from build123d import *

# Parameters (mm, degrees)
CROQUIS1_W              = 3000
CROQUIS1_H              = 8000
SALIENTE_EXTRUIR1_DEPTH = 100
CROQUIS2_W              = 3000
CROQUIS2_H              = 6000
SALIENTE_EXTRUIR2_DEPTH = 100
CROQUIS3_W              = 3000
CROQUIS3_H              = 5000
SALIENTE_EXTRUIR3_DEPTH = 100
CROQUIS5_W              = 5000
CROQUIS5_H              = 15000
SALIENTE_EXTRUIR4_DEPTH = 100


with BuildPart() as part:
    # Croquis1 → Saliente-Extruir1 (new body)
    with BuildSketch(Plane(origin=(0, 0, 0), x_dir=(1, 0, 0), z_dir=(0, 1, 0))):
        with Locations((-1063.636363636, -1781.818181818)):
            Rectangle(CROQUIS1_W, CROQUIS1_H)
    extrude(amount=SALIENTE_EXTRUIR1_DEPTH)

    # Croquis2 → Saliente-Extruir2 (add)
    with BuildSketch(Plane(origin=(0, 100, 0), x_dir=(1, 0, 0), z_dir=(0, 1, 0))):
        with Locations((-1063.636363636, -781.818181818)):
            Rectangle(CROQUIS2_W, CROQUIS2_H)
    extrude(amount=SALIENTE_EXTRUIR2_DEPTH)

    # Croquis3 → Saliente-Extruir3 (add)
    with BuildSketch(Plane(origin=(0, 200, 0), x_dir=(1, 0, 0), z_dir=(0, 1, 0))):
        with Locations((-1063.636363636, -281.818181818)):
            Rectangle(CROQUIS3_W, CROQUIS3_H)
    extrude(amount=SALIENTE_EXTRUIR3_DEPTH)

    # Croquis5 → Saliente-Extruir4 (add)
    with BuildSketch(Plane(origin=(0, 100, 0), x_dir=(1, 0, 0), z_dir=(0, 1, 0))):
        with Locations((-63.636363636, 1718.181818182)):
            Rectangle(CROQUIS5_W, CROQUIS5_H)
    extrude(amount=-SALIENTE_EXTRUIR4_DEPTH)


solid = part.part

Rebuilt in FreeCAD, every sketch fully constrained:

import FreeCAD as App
import Part
import Sketcher
Q = App.Units.Quantity

doc = App.newDocument("Part")
params = doc.addObject("Spreadsheet::Sheet", "Params")
for row, (alias, value) in enumerate([
    ("sketch1_width", "3000 mm"),
    ("sketch1_height", "8000 mm"),
    ("pad1_length", "100 mm"),
    ("sketch2_width", "3000 mm"),
    ("sketch2_height", "6000 mm"),
    ("pad2_length", "100 mm"),
    ("sketch3_width", "3000 mm"),
    ("sketch3_height", "5000 mm"),
    ("pad3_length", "100 mm"),
    ("sketch4_width", "5000 mm"),
    ("sketch4_height", "15000 mm"),
    ("pad4_length", "100 mm"),
], start=1):
    params.set(f"A{row}", alias)
    params.set(f"B{row}", "=" + value)
    params.setAlias(f"B{row}", alias)

body = doc.addObject("PartDesign::Body", "Body")

# Sketch on XZ plane
sketch1 = body.newObject("Sketcher::SketchObject", "Sketch")
sketch1.AttachmentSupport = (doc.getObject("XZ_Plane"), [""])
sketch1.MapMode = "FlatFace"
sketch1.addGeometry([
    Part.LineSegment(App.Vector(-2564, -2218, 0), App.Vector(-2564, 5782, 0)),
    Part.LineSegment(App.Vector(-2564, 5782, 0), App.Vector(436, 5782, 0)),
    Part.LineSegment(App.Vector(436, 5782, 0), App.Vector(436, -2218, 0)),
    Part.LineSegment(App.Vector(436, -2218, 0), App.Vector(-2564, -2218, 0)),
], False)
sketch1.addConstraint([
    Sketcher.Constraint("Coincident", 0, 2, 1, 1),
    Sketcher.Constraint("Coincident", 1, 2, 2, 1),
    Sketcher.Constraint("Coincident", 2, 2, 3, 1),
    Sketcher.Constraint("Coincident", 3, 2, 0, 1),
    Sketcher.Constraint("Vertical", 0),
    Sketcher.Constraint("Horizontal", 1),
    Sketcher.Constraint("Vertical", 2),
    Sketcher.Constraint("Horizontal", 3),
    Sketcher.Constraint("DistanceX", 1, 1, 1, 2, Q("3000 mm")),
    Sketcher.Constraint("DistanceY", 0, 1, 0, 2, Q("8000 mm")),
    Sketcher.Constraint("DistanceY", -1, 1, 0, 2, Q("5781.818182 mm")),
    Sketcher.Constraint("DistanceX", 0, 2, -1, 1, Q("2563.636364 mm")),
])
sketch1.setExpression("Constraints[8]", "Params.sketch1_width")
sketch1.setExpression("Constraints[9]", "Params.sketch1_height")
pad1 = body.newObject("PartDesign::Pad", "Pad")
pad1.Profile = sketch1
pad1.setExpression("Length", "Params.pad1_length")
pad1.Reversed = True

# Sketch on XZ plane
sketch2 = body.newObject("Sketcher::SketchObject", "Sketch001")
sketch2.AttachmentSupport = (doc.getObject("XZ_Plane"), [""])
sketch2.MapMode = "FlatFace"
sketch2.AttachmentOffset = App.Placement(App.Vector(0, 0, -100), App.Rotation())
sketch2.addGeometry([
    Part.LineSegment(App.Vector(-2564, -2218, 0), App.Vector(-2564, 3782, 0)),
    Part.LineSegment(App.Vector(-2564, 3782, 0), App.Vector(436, 3782, 0)),
    Part.LineSegment(App.Vector(436, 3782, 0), App.Vector(436, -2218, 0)),
    Part.LineSegment(App.Vector(436, -2218, 0), App.Vector(-2564, -2218, 0)),
], False)
sketch2.addConstraint([
    Sketcher.Constraint("Coincident", 0, 2, 1, 1),
    Sketcher.Constraint("Coincident", 1, 2, 2, 1),
    Sketcher.Constraint("Coincident", 2, 2, 3, 1),
    Sketcher.Constraint("Coincident", 3, 2, 0, 1),
    Sketcher.Constraint("Vertical", 0),
    Sketcher.Constraint("Horizontal", 1),
    Sketcher.Constraint("Vertical", 2),
    Sketcher.Constraint("Horizontal", 3),
    Sketcher.Constraint("DistanceX", 1, 1, 1, 2, Q("3000 mm")),
    Sketcher.Constraint("DistanceY", 0, 1, 0, 2, Q("6000 mm")),
    Sketcher.Constraint("DistanceY", -1, 1, 0, 2, Q("3781.818182 mm")),
    Sketcher.Constraint("DistanceX", 0, 2, -1, 1, Q("2563.636364 mm")),
])
sketch2.setExpression("Constraints[8]", "Params.sketch2_width")
sketch2.setExpression("Constraints[9]", "Params.sketch2_height")
pad2 = body.newObject("PartDesign::Pad", "Pad001")
pad2.Profile = sketch2
pad2.setExpression("Length", "Params.pad2_length")
pad2.Reversed = True

# Sketch on XZ plane
sketch3 = body.newObject("Sketcher::SketchObject", "Sketch002")
sketch3.AttachmentSupport = (doc.getObject("XZ_Plane"), [""])
sketch3.MapMode = "FlatFace"
sketch3.AttachmentOffset = App.Placement(App.Vector(0, 0, -200), App.Rotation())
sketch3.addGeometry([
    Part.LineSegment(App.Vector(-2564, -2218, 0), App.Vector(-2564, 2782, 0)),
    Part.LineSegment(App.Vector(-2564, 2782, 0), App.Vector(436, 2782, 0)),
    Part.LineSegment(App.Vector(436, 2782, 0), App.Vector(436, -2218, 0)),
    Part.LineSegment(App.Vector(436, -2218, 0), App.Vector(-2564, -2218, 0)),
], False)
sketch3.addConstraint([
    Sketcher.Constraint("Coincident", 0, 2, 1, 1),
    Sketcher.Constraint("Coincident", 1, 2, 2, 1),
    Sketcher.Constraint("Coincident", 2, 2, 3, 1),
    Sketcher.Constraint("Coincident", 3, 2, 0, 1),
    Sketcher.Constraint("Vertical", 0),
    Sketcher.Constraint("Horizontal", 1),
    Sketcher.Constraint("Vertical", 2),
    Sketcher.Constraint("Horizontal", 3),
    Sketcher.Constraint("DistanceX", 1, 1, 1, 2, Q("3000 mm")),
    Sketcher.Constraint("DistanceY", 0, 1, 0, 2, Q("5000 mm")),
    Sketcher.Constraint("DistanceY", -1, 1, 0, 2, Q("2781.818182 mm")),
    Sketcher.Constraint("DistanceX", 0, 2, -1, 1, Q("2563.636364 mm")),
])
sketch3.setExpression("Constraints[8]", "Params.sketch3_width")
sketch3.setExpression("Constraints[9]", "Params.sketch3_height")
pad3 = body.newObject("PartDesign::Pad", "Pad002")
pad3.Profile = sketch3
pad3.setExpression("Length", "Params.pad3_length")
pad3.Reversed = True

# Sketch on XZ plane
sketch4 = body.newObject("Sketcher::SketchObject", "Sketch003")
sketch4.AttachmentSupport = (doc.getObject("XZ_Plane"), [""])
sketch4.MapMode = "FlatFace"
sketch4.AttachmentOffset = App.Placement(App.Vector(0, 0, -100), App.Rotation())
sketch4.addGeometry([
    Part.LineSegment(App.Vector(-2564, -9218, 0), App.Vector(-2564, 5782, 0)),
    Part.LineSegment(App.Vector(-2564, 5782, 0), App.Vector(2436, 5782, 0)),
    Part.LineSegment(App.Vector(2436, 5782, 0), App.Vector(2436, -9218, 0)),
    Part.LineSegment(App.Vector(2436, -9218, 0), App.Vector(-2564, -9218, 0)),
], False)
sketch4.addConstraint([
    Sketcher.Constraint("Coincident", 0, 2, 1, 1),
    Sketcher.Constraint("Coincident", 1, 2, 2, 1),
    Sketcher.Constraint("Coincident", 2, 2, 3, 1),
    Sketcher.Constraint("Coincident", 3, 2, 0, 1),
    Sketcher.Constraint("Vertical", 0),
    Sketcher.Constraint("Horizontal", 1),
    Sketcher.Constraint("Vertical", 2),
    Sketcher.Constraint("Horizontal", 3),
    Sketcher.Constraint("DistanceX", 1, 1, 1, 2, Q("5000 mm")),
    Sketcher.Constraint("DistanceY", 0, 1, 0, 2, Q("15000 mm")),
    Sketcher.Constraint("DistanceY", -1, 1, 0, 2, Q("5781.818182 mm")),
    Sketcher.Constraint("DistanceX", 0, 2, -1, 1, Q("2563.636364 mm")),
])
sketch4.setExpression("Constraints[8]", "Params.sketch4_width")
sketch4.setExpression("Constraints[9]", "Params.sketch4_height")
pad4 = body.newObject("PartDesign::Pad", "Pad003")
pad4.Profile = sketch4
pad4.setExpression("Length", "Params.pad4_length")

doc.recompute()
